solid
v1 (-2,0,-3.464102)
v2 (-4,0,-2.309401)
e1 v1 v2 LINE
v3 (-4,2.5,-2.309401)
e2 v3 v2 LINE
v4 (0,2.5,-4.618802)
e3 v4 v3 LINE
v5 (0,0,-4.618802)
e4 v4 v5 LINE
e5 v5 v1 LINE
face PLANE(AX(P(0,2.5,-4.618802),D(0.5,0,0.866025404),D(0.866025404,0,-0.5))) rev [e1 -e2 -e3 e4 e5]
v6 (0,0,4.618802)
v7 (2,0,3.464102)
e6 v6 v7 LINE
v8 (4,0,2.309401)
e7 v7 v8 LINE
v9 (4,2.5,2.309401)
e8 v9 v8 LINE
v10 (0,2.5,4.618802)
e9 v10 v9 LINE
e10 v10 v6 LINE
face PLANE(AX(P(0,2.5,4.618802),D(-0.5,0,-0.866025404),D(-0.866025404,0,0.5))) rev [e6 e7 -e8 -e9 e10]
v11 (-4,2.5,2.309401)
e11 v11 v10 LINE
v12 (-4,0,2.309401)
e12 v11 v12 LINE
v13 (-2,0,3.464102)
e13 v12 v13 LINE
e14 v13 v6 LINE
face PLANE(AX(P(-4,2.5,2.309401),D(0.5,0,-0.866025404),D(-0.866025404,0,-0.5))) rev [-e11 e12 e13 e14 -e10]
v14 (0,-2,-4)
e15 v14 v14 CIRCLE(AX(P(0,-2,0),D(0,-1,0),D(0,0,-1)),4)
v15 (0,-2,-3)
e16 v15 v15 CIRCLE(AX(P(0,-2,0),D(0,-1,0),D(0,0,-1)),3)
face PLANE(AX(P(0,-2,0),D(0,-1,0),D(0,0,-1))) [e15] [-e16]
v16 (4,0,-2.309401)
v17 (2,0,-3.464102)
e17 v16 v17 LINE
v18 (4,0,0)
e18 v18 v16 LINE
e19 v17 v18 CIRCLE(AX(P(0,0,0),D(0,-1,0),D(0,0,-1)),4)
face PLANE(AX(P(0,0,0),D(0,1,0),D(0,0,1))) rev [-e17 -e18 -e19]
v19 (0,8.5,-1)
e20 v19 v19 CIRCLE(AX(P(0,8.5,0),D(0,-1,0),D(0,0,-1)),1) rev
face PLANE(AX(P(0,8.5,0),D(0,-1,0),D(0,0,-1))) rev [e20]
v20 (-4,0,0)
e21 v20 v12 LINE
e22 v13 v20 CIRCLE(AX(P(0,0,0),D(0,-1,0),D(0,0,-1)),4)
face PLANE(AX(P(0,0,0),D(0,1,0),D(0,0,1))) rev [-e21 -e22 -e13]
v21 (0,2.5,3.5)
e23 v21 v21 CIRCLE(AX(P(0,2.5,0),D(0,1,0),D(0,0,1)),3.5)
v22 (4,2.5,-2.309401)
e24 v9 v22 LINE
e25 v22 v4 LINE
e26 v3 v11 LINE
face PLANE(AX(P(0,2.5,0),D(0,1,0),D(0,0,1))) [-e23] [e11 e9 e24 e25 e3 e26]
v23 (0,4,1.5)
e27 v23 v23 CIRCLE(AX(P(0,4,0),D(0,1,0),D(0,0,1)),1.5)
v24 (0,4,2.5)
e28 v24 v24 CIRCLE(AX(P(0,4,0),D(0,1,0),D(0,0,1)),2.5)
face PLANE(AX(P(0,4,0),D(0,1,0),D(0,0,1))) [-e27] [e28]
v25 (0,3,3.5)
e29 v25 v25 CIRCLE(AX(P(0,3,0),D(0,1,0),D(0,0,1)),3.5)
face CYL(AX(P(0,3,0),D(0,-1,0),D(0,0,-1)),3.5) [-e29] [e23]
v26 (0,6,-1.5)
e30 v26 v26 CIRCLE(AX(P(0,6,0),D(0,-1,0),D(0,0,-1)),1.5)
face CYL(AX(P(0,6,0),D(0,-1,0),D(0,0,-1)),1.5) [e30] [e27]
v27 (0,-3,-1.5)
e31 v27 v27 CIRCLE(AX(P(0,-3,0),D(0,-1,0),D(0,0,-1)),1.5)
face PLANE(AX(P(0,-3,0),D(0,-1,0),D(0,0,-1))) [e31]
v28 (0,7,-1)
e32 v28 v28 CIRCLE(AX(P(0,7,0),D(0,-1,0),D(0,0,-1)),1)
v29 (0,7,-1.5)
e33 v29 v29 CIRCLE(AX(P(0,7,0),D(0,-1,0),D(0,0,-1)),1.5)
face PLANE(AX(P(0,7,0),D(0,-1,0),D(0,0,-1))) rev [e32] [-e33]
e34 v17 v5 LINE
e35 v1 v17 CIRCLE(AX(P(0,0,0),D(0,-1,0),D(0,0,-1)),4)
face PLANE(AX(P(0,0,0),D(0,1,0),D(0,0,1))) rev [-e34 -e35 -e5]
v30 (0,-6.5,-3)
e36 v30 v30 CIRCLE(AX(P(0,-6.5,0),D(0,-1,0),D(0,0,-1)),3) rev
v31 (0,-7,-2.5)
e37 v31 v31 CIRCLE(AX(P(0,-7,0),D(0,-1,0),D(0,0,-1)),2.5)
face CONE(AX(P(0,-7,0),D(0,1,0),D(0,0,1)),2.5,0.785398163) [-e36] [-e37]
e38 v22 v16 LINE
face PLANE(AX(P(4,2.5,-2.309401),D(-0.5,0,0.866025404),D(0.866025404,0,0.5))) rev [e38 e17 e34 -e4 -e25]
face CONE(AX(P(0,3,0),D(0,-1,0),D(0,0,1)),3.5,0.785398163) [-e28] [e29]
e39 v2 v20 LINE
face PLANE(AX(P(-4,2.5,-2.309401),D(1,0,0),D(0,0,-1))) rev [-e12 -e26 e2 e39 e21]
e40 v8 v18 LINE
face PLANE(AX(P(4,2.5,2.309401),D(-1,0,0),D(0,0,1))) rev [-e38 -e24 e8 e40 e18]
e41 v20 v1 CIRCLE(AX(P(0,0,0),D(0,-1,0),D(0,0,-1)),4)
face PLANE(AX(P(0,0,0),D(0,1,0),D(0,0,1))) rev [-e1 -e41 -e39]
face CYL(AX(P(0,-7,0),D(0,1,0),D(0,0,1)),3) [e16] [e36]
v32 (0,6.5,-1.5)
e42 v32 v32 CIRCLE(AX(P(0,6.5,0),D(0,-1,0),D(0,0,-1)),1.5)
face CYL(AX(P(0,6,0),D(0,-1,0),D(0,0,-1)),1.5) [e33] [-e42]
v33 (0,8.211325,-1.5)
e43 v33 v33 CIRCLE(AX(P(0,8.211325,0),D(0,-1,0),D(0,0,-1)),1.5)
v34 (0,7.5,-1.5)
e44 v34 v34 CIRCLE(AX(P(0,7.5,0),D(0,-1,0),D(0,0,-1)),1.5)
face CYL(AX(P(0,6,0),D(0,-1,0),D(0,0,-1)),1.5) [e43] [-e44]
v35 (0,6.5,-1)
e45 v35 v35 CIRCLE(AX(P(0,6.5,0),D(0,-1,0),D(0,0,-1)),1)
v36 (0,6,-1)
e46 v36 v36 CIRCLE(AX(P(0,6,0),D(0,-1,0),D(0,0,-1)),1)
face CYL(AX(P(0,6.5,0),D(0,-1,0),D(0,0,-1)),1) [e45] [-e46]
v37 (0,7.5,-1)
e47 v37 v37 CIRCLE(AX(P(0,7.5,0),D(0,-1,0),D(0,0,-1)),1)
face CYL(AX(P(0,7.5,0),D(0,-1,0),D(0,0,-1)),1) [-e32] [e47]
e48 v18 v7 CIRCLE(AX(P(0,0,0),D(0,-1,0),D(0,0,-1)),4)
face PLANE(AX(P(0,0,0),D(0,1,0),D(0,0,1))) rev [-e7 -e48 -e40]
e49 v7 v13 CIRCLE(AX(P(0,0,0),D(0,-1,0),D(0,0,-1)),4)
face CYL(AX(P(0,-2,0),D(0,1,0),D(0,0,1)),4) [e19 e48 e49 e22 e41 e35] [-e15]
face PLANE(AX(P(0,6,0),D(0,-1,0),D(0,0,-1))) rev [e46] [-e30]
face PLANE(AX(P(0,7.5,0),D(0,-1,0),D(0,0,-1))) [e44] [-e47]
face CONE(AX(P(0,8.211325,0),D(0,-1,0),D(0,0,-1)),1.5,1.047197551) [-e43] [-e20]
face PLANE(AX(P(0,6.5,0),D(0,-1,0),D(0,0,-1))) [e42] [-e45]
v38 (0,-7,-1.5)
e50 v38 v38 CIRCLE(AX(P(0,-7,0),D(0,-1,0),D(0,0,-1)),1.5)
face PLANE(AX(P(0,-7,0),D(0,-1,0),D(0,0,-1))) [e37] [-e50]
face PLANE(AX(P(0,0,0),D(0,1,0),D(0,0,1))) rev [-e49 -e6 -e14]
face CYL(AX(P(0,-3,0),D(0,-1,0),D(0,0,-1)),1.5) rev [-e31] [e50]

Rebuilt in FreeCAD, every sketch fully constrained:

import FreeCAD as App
import Part
import Sketcher
from FreeCAD import Vector
Q = App.Units.Quantity


def edges_at(feature, points):
    """Names of the edges that pass closest to the given points."""
    edges = feature.Shape.Edges
    near = lambda p: min(range(len(edges)), key=lambda i: edges[i].distToShape(Part.Vertex(*p))[0])
    return sorted({f"Edge{near(p) + 1}" for p in points})


def add_polygon(sketch, points):
    """Adds a closed chain of lines whose ends are joined by coincident constraints."""
    first, n = sketch.GeometryCount, len(points)
    for a, b in zip(points, points[1:] + points[:1]):
        sketch.addGeometry(Part.LineSegment(App.Vector(*a, 0), App.Vector(*b, 0)), False)
    for i in range(n):
        sketch.addConstraint(Sketcher.Constraint("Coincident", first + i, 2, first + (i + 1) % n, 1))

doc = App.newDocument("Part")
body = doc.addObject("PartDesign::Body", "Body")

sketch1 = body.newObject("Sketcher::SketchObject", "Sketch")
sketch1.AttachmentSupport = (doc.getObject("XZ_Plane"), [""])
sketch1.MapMode = "FlatFace"
add_polygon(sketch1, [(-4, -2.3), (-4, 2.3), (0, 4.6), (4, 2.3), (4, -2.3), (0, -4.6)])
sketch1.addConstraint(Sketcher.Constraint("Vertical", 0))
sketch1.addConstraint(Sketcher.Constraint("Vertical", 3))
sketch1.addConstraint(Sketcher.Constraint("Symmetric", 0, 2, 3, 2, -1, 1))
sketch1.addConstraint(Sketcher.Constraint("Symmetric", 1, 2, 4, 2, -1, 1))
sketch1.addConstraint(Sketcher.Constraint("PointOnObject", 1, 2, -2))
sketch1.addConstraint(Sketcher.Constraint("Parallel", 2, 5))
sketch1.addConstraint(Sketcher.Constraint("Horizontal", 0, 2, 2, 2))
sketch1.addConstraint(Sketcher.Constraint("Angle", 1, Q("30 deg")))
sketch1.addConstraint(Sketcher.Constraint("DistanceX", 0, 2, -1, 1, Q("4 mm")))
sketch1.addConstraint(Sketcher.Constraint("DistanceY", -1, 1, 0, 2, Q("2.309401 mm")))
pad1 = body.newObject("PartDesign::Pad", "Pad")
pad1.Profile = sketch1
pad1.Length = 2.5
pad1.Reversed = True

sketch2 = body.newObject("Sketcher::SketchObject", "Sketch001")
sketch2.AttachmentSupport = (doc.getObject("XZ_Plane"), [""])
sketch2.MapMode = "FlatFace"
sketch2.addGeometry(Part.Circle(Vector(0, 0, 0), Vector(0, 0, 1), 4), False)
sketch2.addConstraint(Sketcher.Constraint("Coincident", 0, 3, -1, 1))
sketch2.addConstraint(Sketcher.Constraint("Diameter", 0, Q("8 mm")))
pad2 = body.newObject("PartDesign::Pad", "Pad001")
pad2.Profile = sketch2
pad2.Length = 2

sketch3 = body.newObject("Sketcher::SketchObject", "Sketch002")
sketch3.AttachmentSupport = (doc.getObject("XZ_Plane"), [""])
sketch3.MapMode = "FlatFace"
sketch3.AttachmentOffset = App.Placement(Vector(0, 0, 2), App.Rotation())
sketch3.addGeometry(Part.Circle(Vector(0, 0, 0), Vector(0, 0, 1), 3), False)
sketch3.addConstraint(Sketcher.Constraint("Coincident", 0, 3, -1, 1))
sketch3.addConstraint(Sketcher.Constraint("Diameter", 0, Q("6 mm")))
pad3 = body.newObject("PartDesign::Pad", "Pad002")
pad3.Profile = sketch3
pad3.Length = 5

sketch4 = body.newObject("Sketcher::SketchObject", "Sketch003")
sketch4.AttachmentSupport = (doc.getObject("XZ_Plane"), [""])
sketch4.MapMode = "FlatFace"
sketch4.AttachmentOffset = App.Placement(Vector(0, 0, 7), App.Rotation())
sketch4.addGeometry(Part.Circle(Vector(0, 0, 0), Vector(0, 0, 1), 1.5), False)
sketch4.addConstraint(Sketcher.Constraint("Coincident", 0, 3, -1, 1))
sketch4.addConstraint(Sketcher.Constraint("Diameter", 0, Q("3 mm")))
pocket1 = body.newObject("PartDesign::Pocket", "Pocket")
pocket1.Profile = sketch4
pocket1.Length = 4

sketch5 = body.newObject("Sketcher::SketchObject", "Sketch004")
sketch5.AttachmentSupport = (doc.getObject("XZ_Plane"), [""])
sketch5.MapMode = "FlatFace"
sketch5.AttachmentOffset = App.Placement(Vector(0, 0, -2.5), App.Rotation())
sketch5.addGeometry(Part.Circle(Vector(0, 0, 0), Vector(0, 0, 1), 1.5), False)
sketch5.addConstraint(Sketcher.Constraint("Coincident", 0, 3, -1, 1))
sketch5.addConstraint(Sketcher.Constraint("Diameter", 0, Q("3 mm")))
pad4 = body.newObject("PartDesign::Pad", "Pad003")
pad4.Profile = sketch5
pad4.Length = 3.5
pad4.Reversed = True

sketch6 = body.newObject("Sketcher::SketchObject", "Sketch005")
sketch6.AttachmentSupport = (doc.getObject("XZ_Plane"), [""])
sketch6.MapMode = "FlatFace"
sketch6.AttachmentOffset = App.Placement(Vector(0, 0, -2.5), App.Rotation())
sketch6.addGeometry(Part.Circle(Vector(0, 0, 0), Vector(0, 0, 1), 3.5), False)
sketch6.addConstraint(Sketcher.Constraint("Coincident", 0, 3, -1, 1))
sketch6.addConstraint(Sketcher.Constraint("Diameter", 0, Q("7 mm")))
pad5 = body.newObject("PartDesign::Pad", "Pad004")
pad5.Profile = sketch6
pad5.Length = 0.5
pad5.Reversed = True

sketch7 = body.newObject("Sketcher::SketchObject", "Sketch006")
sketch7.AttachmentSupport = (doc.getObject("XZ_Plane"), [""])
sketch7.MapMode = "FlatFace"
sketch7.AttachmentOffset = App.Placement(Vector(0, 0, -3), App.Rotation())
sketch7.addGeometry(Part.Circle(Vector(0, 0, 0), Vector(0, 0, 1), 3.5), False)
sketch7.addConstraint(Sketcher.Constraint("Coincident", 0, 3, -1, 1))
sketch7.addConstraint(Sketcher.Constraint("Diameter", 0, Q("7 mm")))
pad6 = body.newObject("PartDesign::Pad", "Pad005")
pad6.Profile = sketch7
pad6.Length = 1
pad6.Reversed = True
pad6.TaperAngle = -45

sketch8 = body.newObject("Sketcher::SketchObject", "Sketch007")
sketch8.AttachmentSupport = (doc.getObject("XZ_Plane"), [""])
sketch8.MapMode = "FlatFace"
sketch8.AttachmentOffset = App.Placement(Vector(0, 0, 3), App.Rotation())
sketch8.addGeometry(Part.Circle(Vector(0, 0, 0), Vector(0, 0, 1), 1.5), False)
sketch8.addConstraint(Sketcher.Constraint("Coincident", 0, 3, -1, 1))
sketch8.addConstraint(Sketcher.Constraint("Diameter", 0, Q("3 mm")))
pad7 = body.newObject("PartDesign::Pad", "Pad006")
pad7.Profile = sketch8
pad7.Length = 11.5
pad7.Reversed = True

sketch9 = body.newObject("Sketcher::SketchObject", "Sketch008")
sketch9.AttachmentSupport = (doc.getObject("XZ_Plane"), [""])
sketch9.MapMode = "FlatFace"
sketch9.AttachmentOffset = App.Placement(Vector(0, 0, -6), App.Rotation())
sketch9.addGeometry(Part.Circle(Vector(0, 0, 0), Vector(0, 0, 1), 1.5), False)
sketch9.addGeometry(Part.Circle(Vector(0, 0, 0), Vector(0, 0, 1), 1), False)
sketch9.addConstraint(Sketcher.Constraint("Coincident", 0, 3, -1, 1))
sketch9.addConstraint(Sketcher.Constraint("Coincident", 1, 3, -1, 1))
sketch9.addConstraint(Sketcher.Constraint("Diameter", 0, Q("3 mm")))
sketch9.addConstraint(Sketcher.Constraint("Diameter", 1, Q("2 mm")))
pocket2 = body.newObject("PartDesign::Pocket", "Pocket001")
pocket2.Profile = sketch9
pocket2.Length = 0.5

sketch10 = body.newObject("Sketcher::SketchObject", "Sketch009")
sketch10.AttachmentSupport = (doc.getObject("XZ_Plane"), [""])
sketch10.MapMode = "FlatFace"
sketch10.AttachmentOffset = App.Placement(Vector(0, 0, -7), App.Rotation())
sketch10.addGeometry(Part.Circle(Vector(0, 0, 0), Vector(0, 0, 1), 1.5), False)
sketch10.addGeometry(Part.Circle(Vector(0, 0, 0), Vector(0, 0, 1), 1), False)
sketch10.addConstraint(Sketcher.Constraint("Coincident", 0, 3, -1, 1))
sketch10.addConstraint(Sketcher.Constraint("Coincident", 1, 3, -1, 1))
sketch10.addConstraint(Sketcher.Constraint("Diameter", 0, Q("3 mm")))
sketch10.addConstraint(Sketcher.Constraint("Diameter", 1, Q("2 mm")))
pocket3 = body.newObject("PartDesign::Pocket", "Pocket002")
pocket3.Profile = sketch10
pocket3.Length = 0.5
doc.recompute()

chamfer = body.newObject("PartDesign::Chamfer", "Chamfer")
chamfer.Base = (pocket3, edges_at(pocket3, [(0, 8.5, 1.5)]))
chamfer.ChamferType = "Two distances"
chamfer.Size = 0.288675
chamfer.Size2 = 0.5
doc.recompute()

chamfer2 = body.newObject("PartDesign::Chamfer", "Chamfer001")
chamfer2.Base = (chamfer, edges_at(chamfer, [(0, -7, 3)]))
chamfer2.Size = 0.5

doc.recompute()
